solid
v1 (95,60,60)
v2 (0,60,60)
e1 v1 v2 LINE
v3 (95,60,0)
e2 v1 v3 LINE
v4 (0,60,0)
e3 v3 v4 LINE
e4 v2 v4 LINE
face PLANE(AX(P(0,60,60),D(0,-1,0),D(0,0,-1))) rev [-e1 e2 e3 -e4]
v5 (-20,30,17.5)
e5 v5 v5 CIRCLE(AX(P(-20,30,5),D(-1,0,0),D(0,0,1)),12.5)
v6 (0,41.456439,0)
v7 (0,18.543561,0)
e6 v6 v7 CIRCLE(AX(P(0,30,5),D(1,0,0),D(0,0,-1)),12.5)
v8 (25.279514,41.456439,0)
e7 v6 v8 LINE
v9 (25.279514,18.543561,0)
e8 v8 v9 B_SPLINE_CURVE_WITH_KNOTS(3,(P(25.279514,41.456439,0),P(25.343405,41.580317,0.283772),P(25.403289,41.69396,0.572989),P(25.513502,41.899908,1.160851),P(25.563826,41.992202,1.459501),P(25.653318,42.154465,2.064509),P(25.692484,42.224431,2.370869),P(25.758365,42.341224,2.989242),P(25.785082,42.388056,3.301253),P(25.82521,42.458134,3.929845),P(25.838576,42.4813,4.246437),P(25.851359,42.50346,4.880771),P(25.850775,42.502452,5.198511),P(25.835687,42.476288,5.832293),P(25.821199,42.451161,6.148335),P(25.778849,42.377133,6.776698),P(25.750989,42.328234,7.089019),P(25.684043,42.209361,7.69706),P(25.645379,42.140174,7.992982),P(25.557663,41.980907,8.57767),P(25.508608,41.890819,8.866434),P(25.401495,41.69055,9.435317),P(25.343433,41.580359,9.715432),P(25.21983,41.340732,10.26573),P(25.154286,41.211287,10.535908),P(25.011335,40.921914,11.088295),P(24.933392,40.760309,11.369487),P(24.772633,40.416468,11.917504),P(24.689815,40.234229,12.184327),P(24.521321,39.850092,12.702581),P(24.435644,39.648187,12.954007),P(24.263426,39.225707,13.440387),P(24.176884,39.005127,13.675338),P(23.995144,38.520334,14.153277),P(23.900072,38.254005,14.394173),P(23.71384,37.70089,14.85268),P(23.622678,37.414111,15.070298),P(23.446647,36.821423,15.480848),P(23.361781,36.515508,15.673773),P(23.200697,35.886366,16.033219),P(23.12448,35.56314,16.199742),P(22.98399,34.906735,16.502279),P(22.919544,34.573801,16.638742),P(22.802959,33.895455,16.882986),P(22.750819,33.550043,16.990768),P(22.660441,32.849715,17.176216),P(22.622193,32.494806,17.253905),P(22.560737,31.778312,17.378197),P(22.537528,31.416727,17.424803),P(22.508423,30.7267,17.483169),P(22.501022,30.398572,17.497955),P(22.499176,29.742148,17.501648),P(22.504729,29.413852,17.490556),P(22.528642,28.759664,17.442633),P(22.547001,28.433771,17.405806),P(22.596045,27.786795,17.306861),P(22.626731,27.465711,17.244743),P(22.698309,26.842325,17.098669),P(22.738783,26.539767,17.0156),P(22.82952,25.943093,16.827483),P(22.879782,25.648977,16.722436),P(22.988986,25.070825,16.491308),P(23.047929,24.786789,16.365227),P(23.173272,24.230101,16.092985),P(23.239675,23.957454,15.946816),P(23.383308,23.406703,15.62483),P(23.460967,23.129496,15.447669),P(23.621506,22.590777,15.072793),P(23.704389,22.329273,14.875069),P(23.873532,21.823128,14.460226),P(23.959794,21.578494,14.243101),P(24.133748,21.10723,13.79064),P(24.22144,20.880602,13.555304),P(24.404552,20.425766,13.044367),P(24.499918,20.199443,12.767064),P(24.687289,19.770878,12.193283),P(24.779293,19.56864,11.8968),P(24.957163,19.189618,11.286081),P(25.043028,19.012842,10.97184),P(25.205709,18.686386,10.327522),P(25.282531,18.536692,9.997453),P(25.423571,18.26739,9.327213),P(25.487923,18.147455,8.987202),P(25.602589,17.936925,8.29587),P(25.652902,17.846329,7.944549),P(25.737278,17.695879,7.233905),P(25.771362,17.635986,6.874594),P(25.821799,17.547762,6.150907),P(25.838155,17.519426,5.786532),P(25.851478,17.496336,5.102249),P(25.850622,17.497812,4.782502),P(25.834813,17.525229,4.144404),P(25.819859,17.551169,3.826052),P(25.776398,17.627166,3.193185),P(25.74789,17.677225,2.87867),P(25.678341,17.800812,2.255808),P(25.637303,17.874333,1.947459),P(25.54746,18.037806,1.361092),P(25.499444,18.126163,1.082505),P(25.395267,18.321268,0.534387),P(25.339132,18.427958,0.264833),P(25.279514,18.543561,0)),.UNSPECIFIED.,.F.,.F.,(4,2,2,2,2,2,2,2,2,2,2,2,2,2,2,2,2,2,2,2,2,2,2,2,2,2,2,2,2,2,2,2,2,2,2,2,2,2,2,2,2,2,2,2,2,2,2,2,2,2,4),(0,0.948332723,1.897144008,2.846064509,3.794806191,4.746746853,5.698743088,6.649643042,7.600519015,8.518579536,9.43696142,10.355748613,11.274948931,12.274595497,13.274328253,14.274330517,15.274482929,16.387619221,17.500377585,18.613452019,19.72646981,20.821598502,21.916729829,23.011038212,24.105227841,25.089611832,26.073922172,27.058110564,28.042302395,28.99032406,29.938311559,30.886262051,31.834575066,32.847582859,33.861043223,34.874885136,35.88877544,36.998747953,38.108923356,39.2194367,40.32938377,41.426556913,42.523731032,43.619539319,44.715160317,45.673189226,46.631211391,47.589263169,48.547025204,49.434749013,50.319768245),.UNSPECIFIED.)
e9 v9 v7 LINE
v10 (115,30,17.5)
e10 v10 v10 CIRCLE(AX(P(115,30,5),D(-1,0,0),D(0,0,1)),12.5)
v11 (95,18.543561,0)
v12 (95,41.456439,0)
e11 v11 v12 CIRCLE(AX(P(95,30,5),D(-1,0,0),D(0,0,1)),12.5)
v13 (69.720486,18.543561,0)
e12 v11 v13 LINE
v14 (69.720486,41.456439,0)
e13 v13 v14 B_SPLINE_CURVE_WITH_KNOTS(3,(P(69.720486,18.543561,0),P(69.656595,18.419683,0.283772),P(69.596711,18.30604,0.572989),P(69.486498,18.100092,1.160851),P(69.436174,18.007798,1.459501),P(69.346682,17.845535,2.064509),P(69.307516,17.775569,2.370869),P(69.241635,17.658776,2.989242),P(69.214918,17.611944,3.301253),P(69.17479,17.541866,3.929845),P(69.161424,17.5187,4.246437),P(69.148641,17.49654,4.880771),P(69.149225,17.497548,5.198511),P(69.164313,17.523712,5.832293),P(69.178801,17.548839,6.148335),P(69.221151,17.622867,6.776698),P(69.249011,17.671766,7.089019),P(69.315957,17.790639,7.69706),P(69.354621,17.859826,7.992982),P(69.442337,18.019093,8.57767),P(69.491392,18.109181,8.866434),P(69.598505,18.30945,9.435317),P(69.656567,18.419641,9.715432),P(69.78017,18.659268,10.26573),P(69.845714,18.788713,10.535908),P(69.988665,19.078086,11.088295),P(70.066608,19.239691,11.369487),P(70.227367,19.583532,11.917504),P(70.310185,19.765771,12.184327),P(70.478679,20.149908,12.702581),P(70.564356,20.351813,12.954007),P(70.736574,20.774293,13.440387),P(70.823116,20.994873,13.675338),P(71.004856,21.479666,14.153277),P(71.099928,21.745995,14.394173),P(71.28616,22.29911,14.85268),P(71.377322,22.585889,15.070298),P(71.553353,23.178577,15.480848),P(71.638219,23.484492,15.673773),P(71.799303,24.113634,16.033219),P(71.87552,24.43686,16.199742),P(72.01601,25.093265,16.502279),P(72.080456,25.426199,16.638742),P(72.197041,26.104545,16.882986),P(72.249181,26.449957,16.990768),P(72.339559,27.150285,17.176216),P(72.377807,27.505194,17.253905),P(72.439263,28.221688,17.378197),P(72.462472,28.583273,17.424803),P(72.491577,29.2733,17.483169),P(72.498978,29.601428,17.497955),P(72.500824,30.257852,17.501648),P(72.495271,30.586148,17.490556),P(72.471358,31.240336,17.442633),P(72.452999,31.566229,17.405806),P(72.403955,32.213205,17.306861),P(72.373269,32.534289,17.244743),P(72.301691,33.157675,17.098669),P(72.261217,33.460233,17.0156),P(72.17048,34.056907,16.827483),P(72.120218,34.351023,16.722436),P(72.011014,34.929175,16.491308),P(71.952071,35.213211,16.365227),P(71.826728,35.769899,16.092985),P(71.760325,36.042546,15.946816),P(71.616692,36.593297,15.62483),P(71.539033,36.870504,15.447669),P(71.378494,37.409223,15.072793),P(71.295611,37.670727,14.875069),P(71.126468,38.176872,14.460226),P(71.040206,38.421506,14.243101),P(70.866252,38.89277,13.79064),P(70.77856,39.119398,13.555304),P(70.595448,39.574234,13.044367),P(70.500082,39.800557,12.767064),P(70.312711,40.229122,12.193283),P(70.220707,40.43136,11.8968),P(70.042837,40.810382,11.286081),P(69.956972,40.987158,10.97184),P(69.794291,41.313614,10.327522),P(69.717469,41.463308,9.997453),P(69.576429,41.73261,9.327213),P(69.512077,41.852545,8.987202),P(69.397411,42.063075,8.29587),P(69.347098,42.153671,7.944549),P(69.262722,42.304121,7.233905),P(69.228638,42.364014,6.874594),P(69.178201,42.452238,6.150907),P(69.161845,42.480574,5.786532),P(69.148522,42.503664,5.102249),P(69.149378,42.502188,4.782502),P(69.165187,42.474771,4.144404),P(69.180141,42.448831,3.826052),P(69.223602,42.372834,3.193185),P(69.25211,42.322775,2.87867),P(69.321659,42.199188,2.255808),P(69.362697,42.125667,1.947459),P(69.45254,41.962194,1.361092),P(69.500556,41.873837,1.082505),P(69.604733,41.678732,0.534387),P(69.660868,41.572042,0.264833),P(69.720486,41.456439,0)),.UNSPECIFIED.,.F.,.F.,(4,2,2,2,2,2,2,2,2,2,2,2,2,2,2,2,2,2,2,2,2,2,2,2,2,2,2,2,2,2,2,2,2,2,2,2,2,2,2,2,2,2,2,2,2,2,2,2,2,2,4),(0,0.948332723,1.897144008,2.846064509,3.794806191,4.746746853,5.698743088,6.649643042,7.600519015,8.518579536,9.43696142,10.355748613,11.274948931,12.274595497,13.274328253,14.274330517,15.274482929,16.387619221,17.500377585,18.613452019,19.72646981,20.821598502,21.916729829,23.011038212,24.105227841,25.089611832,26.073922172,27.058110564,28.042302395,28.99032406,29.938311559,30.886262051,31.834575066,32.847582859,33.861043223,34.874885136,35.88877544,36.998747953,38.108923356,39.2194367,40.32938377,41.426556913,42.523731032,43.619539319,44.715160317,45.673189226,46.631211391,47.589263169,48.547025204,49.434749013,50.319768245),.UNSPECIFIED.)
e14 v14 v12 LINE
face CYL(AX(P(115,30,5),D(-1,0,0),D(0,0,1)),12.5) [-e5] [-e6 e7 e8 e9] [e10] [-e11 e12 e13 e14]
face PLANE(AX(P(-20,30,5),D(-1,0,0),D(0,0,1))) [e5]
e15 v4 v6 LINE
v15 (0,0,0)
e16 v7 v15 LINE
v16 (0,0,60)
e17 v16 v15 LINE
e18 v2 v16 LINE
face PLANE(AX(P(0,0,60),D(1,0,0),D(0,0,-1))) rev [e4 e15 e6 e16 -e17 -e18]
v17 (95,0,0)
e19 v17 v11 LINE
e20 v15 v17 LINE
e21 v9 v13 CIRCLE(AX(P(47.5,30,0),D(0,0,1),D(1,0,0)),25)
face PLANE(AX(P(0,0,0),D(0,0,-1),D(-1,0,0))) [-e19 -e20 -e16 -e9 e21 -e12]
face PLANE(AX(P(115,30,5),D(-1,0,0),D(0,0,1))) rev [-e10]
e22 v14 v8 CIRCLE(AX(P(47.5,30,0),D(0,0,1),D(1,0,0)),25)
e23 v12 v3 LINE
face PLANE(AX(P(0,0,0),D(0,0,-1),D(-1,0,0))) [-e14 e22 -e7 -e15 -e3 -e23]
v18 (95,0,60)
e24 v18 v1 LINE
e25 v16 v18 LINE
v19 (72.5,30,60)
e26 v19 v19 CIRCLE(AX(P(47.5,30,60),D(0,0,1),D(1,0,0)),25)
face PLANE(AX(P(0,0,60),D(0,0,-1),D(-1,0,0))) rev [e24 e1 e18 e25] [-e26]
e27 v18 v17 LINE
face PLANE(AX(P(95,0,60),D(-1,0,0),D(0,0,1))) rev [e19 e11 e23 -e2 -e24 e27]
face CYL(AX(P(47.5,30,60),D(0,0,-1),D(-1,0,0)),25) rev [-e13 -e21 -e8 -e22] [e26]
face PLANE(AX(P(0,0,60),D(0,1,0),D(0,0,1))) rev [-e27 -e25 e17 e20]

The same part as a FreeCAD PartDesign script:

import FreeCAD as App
import Part
import Sketcher
from FreeCAD import Vector
Q = App.Units.Quantity


def add_polygon(sketch, points):
    """Adds a closed chain of lines whose ends are joined by coincident constraints."""
    first, n = sketch.GeometryCount, len(points)
    for a, b in zip(points, points[1:] + points[:1]):
        sketch.addGeometry(Part.LineSegment(App.Vector(*a, 0), App.Vector(*b, 0)), False)
    for i in range(n):
        sketch.addConstraint(Sketcher.Constraint("Coincident", first + i, 2, first + (i + 1) % n, 1))

doc = App.newDocument("Part")
body = doc.addObject("PartDesign::Body", "Body")

# Sketch on XY plane
sketch1 = body.newObject("Sketcher::SketchObject", "Sketch")
sketch1.AttachmentSupport = (doc.getObject("XY_Plane"), [""])
sketch1.MapMode = "FlatFace"
add_polygon(sketch1, [(0, 60), (0, 0), (95, 0), (95, 60)])  # lines 0-3
sketch1.addGeometry(Part.Circle(Vector(48, 30, 0), Vector(0, 0, 1), 25), False)  # 4
sketch1.addConstraint([
    Sketcher.Constraint("Vertical", 0),
    Sketcher.Constraint("Horizontal", 1),
    Sketcher.Constraint("Vertical", 2),
    Sketcher.Constraint("Horizontal", 3),
    Sketcher.Constraint("Coincident", 0, 2, -1, 1),
    Sketcher.Constraint("Diameter", 4, Q("50 mm")),
    Sketcher.Constraint("DistanceX", 1, 1, 1, 2, Q("95 mm")),
    Sketcher.Constraint("DistanceY", 0, 2, 0, 1, Q("60 mm")),
    Sketcher.Constraint("DistanceY", -1, 1, 4, 3, Q("30 mm")),
    Sketcher.Constraint("DistanceX", -1, 1, 4, 3, Q("47.5 mm")),
])
pad1 = body.newObject("PartDesign::Pad", "Pad")
pad1.Profile = sketch1
pad1.Length = 60

# Sketch on YZ plane
sketch2 = body.newObject("Sketcher::SketchObject", "Sketch001")
sketch2.AttachmentSupport = (doc.getObject("YZ_Plane"), [""])
sketch2.MapMode = "FlatFace"
sketch2.addGeometry(Part.Circle(Vector(30, 5, 0), Vector(0, 0, 1), 12), False)
sketch2.addConstraint([
    Sketcher.Constraint("Diameter", 0, Q("25 mm")),
    Sketcher.Constraint("DistanceX", -1, 1, 0, 3, Q("30 mm")),
    Sketcher.Constraint("DistanceY", -1, 1, 0, 3, Q("5 mm")),
])
pad2 = body.newObject("PartDesign::Pad", "Pad001")
pad2.Profile = sketch2
pad2.Type = "TwoLengths"
pad2.Length = 20
pad2.Length2 = 115
pad2.Reversed = True

doc.recompute()
